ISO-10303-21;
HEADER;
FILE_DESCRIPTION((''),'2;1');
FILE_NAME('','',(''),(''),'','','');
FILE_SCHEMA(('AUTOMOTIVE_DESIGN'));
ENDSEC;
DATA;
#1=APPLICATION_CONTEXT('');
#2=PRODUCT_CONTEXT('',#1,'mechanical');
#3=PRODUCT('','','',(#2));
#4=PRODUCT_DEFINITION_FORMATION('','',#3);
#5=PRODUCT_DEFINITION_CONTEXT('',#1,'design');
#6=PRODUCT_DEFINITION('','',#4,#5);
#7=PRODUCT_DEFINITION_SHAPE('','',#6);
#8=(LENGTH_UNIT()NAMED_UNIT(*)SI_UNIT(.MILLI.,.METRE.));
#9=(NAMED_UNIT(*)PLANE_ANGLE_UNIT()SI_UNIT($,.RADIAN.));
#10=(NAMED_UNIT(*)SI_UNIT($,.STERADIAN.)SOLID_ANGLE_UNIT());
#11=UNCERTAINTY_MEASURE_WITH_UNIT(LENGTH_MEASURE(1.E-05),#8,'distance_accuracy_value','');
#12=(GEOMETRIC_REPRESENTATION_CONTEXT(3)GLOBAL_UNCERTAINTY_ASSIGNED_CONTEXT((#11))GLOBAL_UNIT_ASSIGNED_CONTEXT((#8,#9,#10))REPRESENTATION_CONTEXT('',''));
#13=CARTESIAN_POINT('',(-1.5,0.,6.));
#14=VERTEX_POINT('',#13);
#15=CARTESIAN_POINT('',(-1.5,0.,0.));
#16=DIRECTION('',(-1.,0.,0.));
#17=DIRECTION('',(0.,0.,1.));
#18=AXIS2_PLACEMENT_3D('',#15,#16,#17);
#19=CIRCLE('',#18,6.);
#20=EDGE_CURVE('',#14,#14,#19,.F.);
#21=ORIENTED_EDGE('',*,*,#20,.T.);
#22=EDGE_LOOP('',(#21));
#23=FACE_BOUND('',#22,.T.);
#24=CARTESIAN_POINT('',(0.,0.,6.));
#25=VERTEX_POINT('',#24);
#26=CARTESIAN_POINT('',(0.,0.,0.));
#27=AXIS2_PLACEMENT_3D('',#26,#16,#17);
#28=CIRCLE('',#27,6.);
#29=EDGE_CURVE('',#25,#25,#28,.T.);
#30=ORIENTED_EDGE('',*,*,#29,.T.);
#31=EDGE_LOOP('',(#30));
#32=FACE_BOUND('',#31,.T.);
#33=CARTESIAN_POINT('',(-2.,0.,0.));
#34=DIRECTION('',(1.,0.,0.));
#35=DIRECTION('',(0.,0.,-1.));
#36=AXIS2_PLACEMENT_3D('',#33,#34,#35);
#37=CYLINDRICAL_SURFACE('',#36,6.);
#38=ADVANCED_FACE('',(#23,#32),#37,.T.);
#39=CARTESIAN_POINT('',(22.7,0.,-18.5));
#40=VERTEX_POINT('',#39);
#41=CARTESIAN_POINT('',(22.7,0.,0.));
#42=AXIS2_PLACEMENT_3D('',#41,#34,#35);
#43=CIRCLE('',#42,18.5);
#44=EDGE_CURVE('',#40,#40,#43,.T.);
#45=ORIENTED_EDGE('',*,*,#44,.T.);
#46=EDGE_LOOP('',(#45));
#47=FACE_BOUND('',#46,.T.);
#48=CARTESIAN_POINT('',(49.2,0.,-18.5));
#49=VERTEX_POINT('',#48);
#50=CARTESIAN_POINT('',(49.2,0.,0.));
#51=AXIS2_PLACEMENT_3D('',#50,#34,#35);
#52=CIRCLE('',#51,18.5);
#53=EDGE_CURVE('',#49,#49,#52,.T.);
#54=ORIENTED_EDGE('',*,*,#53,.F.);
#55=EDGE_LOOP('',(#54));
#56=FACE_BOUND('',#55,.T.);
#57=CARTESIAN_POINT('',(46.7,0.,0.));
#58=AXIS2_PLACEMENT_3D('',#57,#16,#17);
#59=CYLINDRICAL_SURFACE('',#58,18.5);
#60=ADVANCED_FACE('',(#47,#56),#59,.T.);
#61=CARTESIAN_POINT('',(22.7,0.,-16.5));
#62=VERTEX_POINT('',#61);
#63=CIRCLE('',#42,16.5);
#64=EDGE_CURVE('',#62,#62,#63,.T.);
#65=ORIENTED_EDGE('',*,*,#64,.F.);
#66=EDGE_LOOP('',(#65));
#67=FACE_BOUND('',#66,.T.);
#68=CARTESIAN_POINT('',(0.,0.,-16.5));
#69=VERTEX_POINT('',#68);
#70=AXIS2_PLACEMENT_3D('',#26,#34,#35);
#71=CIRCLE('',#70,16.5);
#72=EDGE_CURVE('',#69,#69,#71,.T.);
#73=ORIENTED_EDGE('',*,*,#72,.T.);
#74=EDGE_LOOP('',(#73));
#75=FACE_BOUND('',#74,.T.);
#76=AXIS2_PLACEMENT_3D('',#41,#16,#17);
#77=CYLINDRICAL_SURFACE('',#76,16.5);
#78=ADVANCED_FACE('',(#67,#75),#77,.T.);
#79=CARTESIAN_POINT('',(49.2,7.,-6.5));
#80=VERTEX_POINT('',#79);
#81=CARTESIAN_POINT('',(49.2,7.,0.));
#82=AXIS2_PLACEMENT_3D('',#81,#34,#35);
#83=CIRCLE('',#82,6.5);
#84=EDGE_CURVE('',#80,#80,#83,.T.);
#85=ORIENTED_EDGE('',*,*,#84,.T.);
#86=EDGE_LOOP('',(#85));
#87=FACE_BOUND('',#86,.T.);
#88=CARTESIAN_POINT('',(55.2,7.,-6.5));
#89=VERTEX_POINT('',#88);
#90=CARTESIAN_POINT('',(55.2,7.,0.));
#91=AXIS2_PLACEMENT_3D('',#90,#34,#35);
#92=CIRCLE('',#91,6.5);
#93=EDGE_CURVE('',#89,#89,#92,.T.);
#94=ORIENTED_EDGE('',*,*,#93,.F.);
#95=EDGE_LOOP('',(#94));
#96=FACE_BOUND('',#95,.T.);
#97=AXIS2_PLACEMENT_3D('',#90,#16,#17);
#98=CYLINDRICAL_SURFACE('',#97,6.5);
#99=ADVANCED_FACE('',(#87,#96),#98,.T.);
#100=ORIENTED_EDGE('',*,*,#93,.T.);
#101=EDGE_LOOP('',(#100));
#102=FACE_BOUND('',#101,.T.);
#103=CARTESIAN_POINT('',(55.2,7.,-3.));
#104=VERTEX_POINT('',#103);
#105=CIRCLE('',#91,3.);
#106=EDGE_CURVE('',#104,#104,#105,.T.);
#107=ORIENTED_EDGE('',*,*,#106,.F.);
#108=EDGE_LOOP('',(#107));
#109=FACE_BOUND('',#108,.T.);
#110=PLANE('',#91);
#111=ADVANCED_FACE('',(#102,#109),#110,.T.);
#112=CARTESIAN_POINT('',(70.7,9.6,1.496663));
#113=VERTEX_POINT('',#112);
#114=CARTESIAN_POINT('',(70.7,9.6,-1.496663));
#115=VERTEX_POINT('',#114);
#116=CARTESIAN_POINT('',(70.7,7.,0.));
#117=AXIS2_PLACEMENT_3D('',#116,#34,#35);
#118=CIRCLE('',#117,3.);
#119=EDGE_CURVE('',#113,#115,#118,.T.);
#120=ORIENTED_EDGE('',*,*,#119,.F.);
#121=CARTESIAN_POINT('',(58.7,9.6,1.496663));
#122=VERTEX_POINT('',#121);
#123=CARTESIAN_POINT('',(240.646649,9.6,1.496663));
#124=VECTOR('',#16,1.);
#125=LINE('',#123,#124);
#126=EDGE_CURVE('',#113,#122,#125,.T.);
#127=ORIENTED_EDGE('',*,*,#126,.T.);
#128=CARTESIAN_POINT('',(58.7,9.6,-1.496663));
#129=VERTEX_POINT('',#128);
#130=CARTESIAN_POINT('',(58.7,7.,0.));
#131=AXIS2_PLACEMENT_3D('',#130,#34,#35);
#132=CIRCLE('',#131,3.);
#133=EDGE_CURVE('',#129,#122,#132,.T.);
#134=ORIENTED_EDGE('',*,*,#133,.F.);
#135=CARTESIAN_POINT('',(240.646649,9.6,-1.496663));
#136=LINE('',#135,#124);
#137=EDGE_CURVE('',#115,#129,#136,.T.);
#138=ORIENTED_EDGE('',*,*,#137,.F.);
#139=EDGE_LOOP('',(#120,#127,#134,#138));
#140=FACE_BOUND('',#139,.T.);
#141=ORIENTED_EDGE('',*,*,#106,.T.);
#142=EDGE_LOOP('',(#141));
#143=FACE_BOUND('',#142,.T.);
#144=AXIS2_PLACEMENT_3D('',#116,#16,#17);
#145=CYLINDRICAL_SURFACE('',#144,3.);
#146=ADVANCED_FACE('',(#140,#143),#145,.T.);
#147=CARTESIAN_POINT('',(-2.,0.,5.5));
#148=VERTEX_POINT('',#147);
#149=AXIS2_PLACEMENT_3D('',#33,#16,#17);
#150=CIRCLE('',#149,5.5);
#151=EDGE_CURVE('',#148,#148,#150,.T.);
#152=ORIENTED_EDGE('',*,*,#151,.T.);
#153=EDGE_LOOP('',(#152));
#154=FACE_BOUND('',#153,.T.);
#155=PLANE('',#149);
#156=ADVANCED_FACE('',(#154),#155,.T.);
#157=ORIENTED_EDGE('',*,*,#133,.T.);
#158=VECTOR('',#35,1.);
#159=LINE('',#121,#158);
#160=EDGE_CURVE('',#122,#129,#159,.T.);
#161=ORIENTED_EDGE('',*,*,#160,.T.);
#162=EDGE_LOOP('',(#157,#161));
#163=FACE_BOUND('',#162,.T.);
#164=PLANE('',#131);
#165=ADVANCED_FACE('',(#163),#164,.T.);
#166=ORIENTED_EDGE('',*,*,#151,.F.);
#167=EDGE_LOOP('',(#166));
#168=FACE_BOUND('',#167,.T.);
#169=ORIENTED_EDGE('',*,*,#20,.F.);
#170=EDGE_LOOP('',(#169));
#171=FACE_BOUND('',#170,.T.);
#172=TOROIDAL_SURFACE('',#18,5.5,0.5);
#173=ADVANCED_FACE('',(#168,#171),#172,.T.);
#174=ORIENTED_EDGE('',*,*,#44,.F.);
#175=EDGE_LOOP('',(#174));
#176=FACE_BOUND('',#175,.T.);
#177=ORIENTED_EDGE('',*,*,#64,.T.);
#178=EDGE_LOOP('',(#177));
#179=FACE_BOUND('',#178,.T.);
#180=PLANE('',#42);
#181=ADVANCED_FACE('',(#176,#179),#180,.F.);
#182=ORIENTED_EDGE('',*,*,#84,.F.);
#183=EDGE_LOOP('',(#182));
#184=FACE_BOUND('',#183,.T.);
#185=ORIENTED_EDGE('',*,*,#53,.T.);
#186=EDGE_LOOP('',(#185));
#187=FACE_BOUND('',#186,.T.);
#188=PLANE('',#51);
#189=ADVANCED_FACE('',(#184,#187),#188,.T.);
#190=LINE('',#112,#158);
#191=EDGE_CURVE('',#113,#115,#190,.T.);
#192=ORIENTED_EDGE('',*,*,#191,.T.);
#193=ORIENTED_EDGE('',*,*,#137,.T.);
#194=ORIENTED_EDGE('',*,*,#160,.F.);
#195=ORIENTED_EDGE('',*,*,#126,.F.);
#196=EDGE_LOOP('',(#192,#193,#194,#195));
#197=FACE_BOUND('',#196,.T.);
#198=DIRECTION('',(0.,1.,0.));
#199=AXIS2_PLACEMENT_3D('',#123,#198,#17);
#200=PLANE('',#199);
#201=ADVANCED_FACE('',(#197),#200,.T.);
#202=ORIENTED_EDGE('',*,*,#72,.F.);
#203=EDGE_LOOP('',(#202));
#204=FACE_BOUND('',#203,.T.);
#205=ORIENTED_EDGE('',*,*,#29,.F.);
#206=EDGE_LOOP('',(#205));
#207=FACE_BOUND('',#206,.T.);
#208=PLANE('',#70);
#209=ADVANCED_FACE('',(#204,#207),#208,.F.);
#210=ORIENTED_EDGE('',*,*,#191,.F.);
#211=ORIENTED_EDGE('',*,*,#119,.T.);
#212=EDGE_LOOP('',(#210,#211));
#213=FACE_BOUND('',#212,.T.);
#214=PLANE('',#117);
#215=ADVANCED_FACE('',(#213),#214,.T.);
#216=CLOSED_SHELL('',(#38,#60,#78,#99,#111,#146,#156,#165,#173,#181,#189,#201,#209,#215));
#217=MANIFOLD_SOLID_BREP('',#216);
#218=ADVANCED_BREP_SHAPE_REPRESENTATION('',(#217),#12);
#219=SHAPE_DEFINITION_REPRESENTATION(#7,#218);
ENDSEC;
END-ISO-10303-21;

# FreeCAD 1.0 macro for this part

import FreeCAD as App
import Part
import Sketcher


def edges_at(feature, points):
    """Names of the edges that pass closest to the given points."""
    edges = feature.Shape.Edges
    near = lambda p: min(range(len(edges)), key=lambda i: edges[i].distToShape(Part.Vertex(*p))[0])
    return sorted({f"Edge{near(p) + 1}" for p in points})


def add_polygon(sketch, points):
    """Adds a closed chain of lines whose ends are joined by coincident constraints."""
    first, n = sketch.GeometryCount, len(points)
    for a, b in zip(points, points[1:] + points[:1]):
        sketch.addGeometry(Part.LineSegment(App.Vector(*a, 0), App.Vector(*b, 0)), False)
    for i in range(n):
        sketch.addConstraint(Sketcher.Constraint("Coincident", first + i, 2, first + (i + 1) % n, 1))

doc = App.newDocument("Part")
body = doc.addObject("PartDesign::Body", "Body")

sketch1 = body.newObject("Sketcher::SketchObject", "Sketch")
sketch1.AttachmentSupport = (doc.getObject("YZ_Plane"), [""])
sketch1.MapMode = "FlatFace"
sketch1.addGeometry(Part.Circle(App.Vector(0, 0, 0), App.Vector(0, 0, 1), 16.5), False)
sketch1.addConstraint([
    Sketcher.Constraint("Coincident", 0, 3, -1, 1),
    Sketcher.Constraint("Diameter", 0, 33.0),
])
pad1 = body.newObject("PartDesign::Pad", "Pad")
pad1.Profile = sketch1
pad1.Length = 22.7

sketch2 = body.newObject("Sketcher::SketchObject", "Sketch001")
sketch2.AttachmentSupport = (doc.getObject("YZ_Plane"), [""])
sketch2.MapMode = "FlatFace"
sketch2.AttachmentOffset = App.Placement(App.Vector(0, 0, 22.7), App.Rotation())
sketch2.addGeometry(Part.Circle(App.Vector(0, 0, 0), App.Vector(0, 0, 1), 18.5), False)
sketch2.addConstraint([
    Sketcher.Constraint("Coincident", 0, 3, -1, 1),
    Sketcher.Constraint("Diameter", 0, 37.0),
])
pad2 = body.newObject("PartDesign::Pad", "Pad001")
pad2.Profile = sketch2
pad2.Length = 24

sketch3 = body.newObject("Sketcher::SketchObject", "Sketch002")
sketch3.AttachmentSupport = (doc.getObject("YZ_Plane"), [""])
sketch3.MapMode = "FlatFace"
sketch3.AttachmentOffset = App.Placement(App.Vector(0, 0, 46.7), App.Rotation())
sketch3.addGeometry(Part.Circle(App.Vector(7, 0, 0), App.Vector(0, 0, 1), 6.5), False)
sketch3.addConstraint([
    Sketcher.Constraint("PointOnObject", 0, 3, -1),
    Sketcher.Constraint("Diameter", 0, 13.0),
    Sketcher.Constraint("DistanceX", -1, 1, 0, 3, 7.0),
])
pad3 = body.newObject("PartDesign::Pad", "Pad002")
pad3.Profile = sketch3
pad3.Length = 8.5

sketch4 = body.newObject("Sketcher::SketchObject", "Sketch003")
sketch4.AttachmentSupport = (doc.getObject("YZ_Plane"), [""])
sketch4.MapMode = "FlatFace"
sketch4.AttachmentOffset = App.Placement(App.Vector(0, 0, 46.7), App.Rotation())
sketch4.addGeometry([
    Part.Circle(App.Vector(0, 15.5, 0), App.Vector(0, 0, 1), 1.5),
    Part.Circle(App.Vector(13.423394, 7.75, 0), App.Vector(0, 0, 1), 1.5),
    Part.Circle(App.Vector(13.423394, -7.75, 0), App.Vector(0, 0, 1), 1.5),
    Part.Circle(App.Vector(0, -15.5, 0), App.Vector(0, 0, 1), 1.5),
    Part.Circle(App.Vector(-13.423394, -7.75, 0), App.Vector(0, 0, 1), 1.5),
    Part.Circle(App.Vector(-13.423394, 7.75, 0), App.Vector(0, 0, 1), 1.5),
], False)
sketch4.addConstraint([
    Sketcher.Constraint("Equal", 0, 1),
    Sketcher.Constraint("Equal", 1, 2),
    Sketcher.Constraint("Equal", 2, 3),
    Sketcher.Constraint("Equal", 3, 4),
    Sketcher.Constraint("Equal", 4, 5),
    Sketcher.Constraint("Symmetric", 0, 3, 3, 3, -1, 1),
    Sketcher.Constraint("Symmetric", 1, 3, 4, 3, -1, 1),
    Sketcher.Constraint("Symmetric", 2, 3, 5, 3, -1, 1),
    Sketcher.Constraint("Symmetric", 2, 3, 4, 3, -2),
    Sketcher.Constraint("PointOnObject", 0, 3, -2),
    Sketcher.Constraint("Diameter", 0, 3.0),
    Sketcher.Constraint("DistanceY", 3, 3, 0, 3, 31.0),
    Sketcher.Constraint("DistanceY", 2, 3, 1, 3, 15.5),
    Sketcher.Constraint("DistanceX", -1, 1, 1, 3, 13.423394),
])
pocket1 = body.newObject("PartDesign::Pocket", "Pocket")
pocket1.Profile = sketch4
pocket1.Length = 10

sketch5 = body.newObject("Sketcher::SketchObject", "Sketch004")
sketch5.AttachmentSupport = (doc.getObject("YZ_Plane"), [""])
sketch5.MapMode = "FlatFace"
sketch5.AttachmentOffset = App.Placement(App.Vector(0, 0, 22.7), App.Rotation())
sketch5.addGeometry(Part.Circle(App.Vector(0, 0, 0), App.Vector(0, 0, 1), 18.5), False)
sketch5.addConstraint([
    Sketcher.Constraint("Coincident", 0, 3, -1, 1),
    Sketcher.Constraint("Diameter", 0, 37.0),
])
pad4 = body.newObject("PartDesign::Pad", "Pad003")
pad4.Profile = sketch5
pad4.Length = 26.5

sketch6 = body.newObject("Sketcher::SketchObject", "Sketch005")
sketch6.AttachmentSupport = (doc.getObject("YZ_Plane"), [""])
sketch6.MapMode = "FlatFace"
sketch6.AttachmentOffset = App.Placement(App.Vector(0, 0, 46.7), App.Rotation())
sketch6.addGeometry(Part.Circle(App.Vector(7, 0, 0), App.Vector(0, 0, 1), 6.5), False)
sketch6.addConstraint([
    Sketcher.Constraint("PointOnObject", 0, 3, -1),
    Sketcher.Constraint("Diameter", 0, 13.0),
    Sketcher.Constraint("DistanceX", -1, 1, 0, 3, 7.0),
])
pad5 = body.newObject("PartDesign::Pad", "Pad004")
pad5.Profile = sketch6
pad5.Length = 6

sketch7 = body.newObject("Sketcher::SketchObject", "Sketch006")
sketch7.AttachmentSupport = (doc.getObject("YZ_Plane"), [""])
sketch7.MapMode = "FlatFace"
sketch7.AttachmentOffset = App.Placement(App.Vector(0, 0, 55.2), App.Rotation())
sketch7.addGeometry(Part.Circle(App.Vector(7, 0, 0), App.Vector(0, 0, 1), 3), False)
sketch7.addConstraint([
    Sketcher.Constraint("PointOnObject", 0, 3, -1),
    Sketcher.Constraint("Diameter", 0, 6.0),
    Sketcher.Constraint("DistanceX", -1, 1, 0, 3, 7.0),
])
pad6 = body.newObject("PartDesign::Pad", "Pad005")
pad6.Profile = sketch7
pad6.Length = 15.5

sketch8 = body.newObject("Sketcher::SketchObject", "Sketch007")
sketch8.AttachmentSupport = (doc.getObject("YZ_Plane"), [""])
sketch8.MapMode = "FlatFace"
sketch8.AttachmentOffset = App.Placement(App.Vector(0, 0, 70.7), App.Rotation())
add_polygon(sketch8, [(9.6, 80.47424), (9.6, -80.47424), (167.555154, -80.47424), (167.555154, 80.47424)])
sketch8.addConstraint([
    Sketcher.Constraint("Vertical", 0),
    Sketcher.Constraint("Horizontal", 1),
    Sketcher.Constraint("Vertical", 2),
    Sketcher.Constraint("Horizontal", 3),
    Sketcher.Constraint("DistanceX", -1, 1, 0, 2, 9.6),
    Sketcher.Constraint("DistanceY", 0, 2, 0, 1, 160.94848),
    Sketcher.Constraint("DistanceX", 1, 1, 1, 2, 157.955154),
    Sketcher.Constraint("DistanceY", 0, 2, -1, 1, 80.47424),
])
pocket2 = body.newObject("PartDesign::Pocket", "Pocket001")
pocket2.Profile = sketch8
pocket2.Type = "TwoLengths"
pocket2.Length = 76.385609
pocket2.Length2 = 12
pocket2.Reversed = True

sketch9 = body.newObject("Sketcher::SketchObject", "Sketch008")
sketch9.AttachmentSupport = (doc.getObject("YZ_Plane"), [""])
sketch9.MapMode = "FlatFace"
sketch9.addGeometry(Part.Circle(App.Vector(0, 0, 0), App.Vector(0, 0, 1), 6), False)
sketch9.addConstraint([
    Sketcher.Constraint("Coincident", 0, 3, -1, 1),
    Sketcher.Constraint("Diameter", 0, 12.0),
])
pad7 = body.newObject("PartDesign::Pad", "Pad006")
pad7.Profile = sketch9
pad7.Length = 2
pad7.Reversed = True
doc.recompute()

fillet = body.newObject("PartDesign::Fillet", "Fillet")
fillet.Base = (pad7, edges_at(pad7, [(-2, 0, -6)]))
fillet.Radius = 0.5

doc.recompute()
